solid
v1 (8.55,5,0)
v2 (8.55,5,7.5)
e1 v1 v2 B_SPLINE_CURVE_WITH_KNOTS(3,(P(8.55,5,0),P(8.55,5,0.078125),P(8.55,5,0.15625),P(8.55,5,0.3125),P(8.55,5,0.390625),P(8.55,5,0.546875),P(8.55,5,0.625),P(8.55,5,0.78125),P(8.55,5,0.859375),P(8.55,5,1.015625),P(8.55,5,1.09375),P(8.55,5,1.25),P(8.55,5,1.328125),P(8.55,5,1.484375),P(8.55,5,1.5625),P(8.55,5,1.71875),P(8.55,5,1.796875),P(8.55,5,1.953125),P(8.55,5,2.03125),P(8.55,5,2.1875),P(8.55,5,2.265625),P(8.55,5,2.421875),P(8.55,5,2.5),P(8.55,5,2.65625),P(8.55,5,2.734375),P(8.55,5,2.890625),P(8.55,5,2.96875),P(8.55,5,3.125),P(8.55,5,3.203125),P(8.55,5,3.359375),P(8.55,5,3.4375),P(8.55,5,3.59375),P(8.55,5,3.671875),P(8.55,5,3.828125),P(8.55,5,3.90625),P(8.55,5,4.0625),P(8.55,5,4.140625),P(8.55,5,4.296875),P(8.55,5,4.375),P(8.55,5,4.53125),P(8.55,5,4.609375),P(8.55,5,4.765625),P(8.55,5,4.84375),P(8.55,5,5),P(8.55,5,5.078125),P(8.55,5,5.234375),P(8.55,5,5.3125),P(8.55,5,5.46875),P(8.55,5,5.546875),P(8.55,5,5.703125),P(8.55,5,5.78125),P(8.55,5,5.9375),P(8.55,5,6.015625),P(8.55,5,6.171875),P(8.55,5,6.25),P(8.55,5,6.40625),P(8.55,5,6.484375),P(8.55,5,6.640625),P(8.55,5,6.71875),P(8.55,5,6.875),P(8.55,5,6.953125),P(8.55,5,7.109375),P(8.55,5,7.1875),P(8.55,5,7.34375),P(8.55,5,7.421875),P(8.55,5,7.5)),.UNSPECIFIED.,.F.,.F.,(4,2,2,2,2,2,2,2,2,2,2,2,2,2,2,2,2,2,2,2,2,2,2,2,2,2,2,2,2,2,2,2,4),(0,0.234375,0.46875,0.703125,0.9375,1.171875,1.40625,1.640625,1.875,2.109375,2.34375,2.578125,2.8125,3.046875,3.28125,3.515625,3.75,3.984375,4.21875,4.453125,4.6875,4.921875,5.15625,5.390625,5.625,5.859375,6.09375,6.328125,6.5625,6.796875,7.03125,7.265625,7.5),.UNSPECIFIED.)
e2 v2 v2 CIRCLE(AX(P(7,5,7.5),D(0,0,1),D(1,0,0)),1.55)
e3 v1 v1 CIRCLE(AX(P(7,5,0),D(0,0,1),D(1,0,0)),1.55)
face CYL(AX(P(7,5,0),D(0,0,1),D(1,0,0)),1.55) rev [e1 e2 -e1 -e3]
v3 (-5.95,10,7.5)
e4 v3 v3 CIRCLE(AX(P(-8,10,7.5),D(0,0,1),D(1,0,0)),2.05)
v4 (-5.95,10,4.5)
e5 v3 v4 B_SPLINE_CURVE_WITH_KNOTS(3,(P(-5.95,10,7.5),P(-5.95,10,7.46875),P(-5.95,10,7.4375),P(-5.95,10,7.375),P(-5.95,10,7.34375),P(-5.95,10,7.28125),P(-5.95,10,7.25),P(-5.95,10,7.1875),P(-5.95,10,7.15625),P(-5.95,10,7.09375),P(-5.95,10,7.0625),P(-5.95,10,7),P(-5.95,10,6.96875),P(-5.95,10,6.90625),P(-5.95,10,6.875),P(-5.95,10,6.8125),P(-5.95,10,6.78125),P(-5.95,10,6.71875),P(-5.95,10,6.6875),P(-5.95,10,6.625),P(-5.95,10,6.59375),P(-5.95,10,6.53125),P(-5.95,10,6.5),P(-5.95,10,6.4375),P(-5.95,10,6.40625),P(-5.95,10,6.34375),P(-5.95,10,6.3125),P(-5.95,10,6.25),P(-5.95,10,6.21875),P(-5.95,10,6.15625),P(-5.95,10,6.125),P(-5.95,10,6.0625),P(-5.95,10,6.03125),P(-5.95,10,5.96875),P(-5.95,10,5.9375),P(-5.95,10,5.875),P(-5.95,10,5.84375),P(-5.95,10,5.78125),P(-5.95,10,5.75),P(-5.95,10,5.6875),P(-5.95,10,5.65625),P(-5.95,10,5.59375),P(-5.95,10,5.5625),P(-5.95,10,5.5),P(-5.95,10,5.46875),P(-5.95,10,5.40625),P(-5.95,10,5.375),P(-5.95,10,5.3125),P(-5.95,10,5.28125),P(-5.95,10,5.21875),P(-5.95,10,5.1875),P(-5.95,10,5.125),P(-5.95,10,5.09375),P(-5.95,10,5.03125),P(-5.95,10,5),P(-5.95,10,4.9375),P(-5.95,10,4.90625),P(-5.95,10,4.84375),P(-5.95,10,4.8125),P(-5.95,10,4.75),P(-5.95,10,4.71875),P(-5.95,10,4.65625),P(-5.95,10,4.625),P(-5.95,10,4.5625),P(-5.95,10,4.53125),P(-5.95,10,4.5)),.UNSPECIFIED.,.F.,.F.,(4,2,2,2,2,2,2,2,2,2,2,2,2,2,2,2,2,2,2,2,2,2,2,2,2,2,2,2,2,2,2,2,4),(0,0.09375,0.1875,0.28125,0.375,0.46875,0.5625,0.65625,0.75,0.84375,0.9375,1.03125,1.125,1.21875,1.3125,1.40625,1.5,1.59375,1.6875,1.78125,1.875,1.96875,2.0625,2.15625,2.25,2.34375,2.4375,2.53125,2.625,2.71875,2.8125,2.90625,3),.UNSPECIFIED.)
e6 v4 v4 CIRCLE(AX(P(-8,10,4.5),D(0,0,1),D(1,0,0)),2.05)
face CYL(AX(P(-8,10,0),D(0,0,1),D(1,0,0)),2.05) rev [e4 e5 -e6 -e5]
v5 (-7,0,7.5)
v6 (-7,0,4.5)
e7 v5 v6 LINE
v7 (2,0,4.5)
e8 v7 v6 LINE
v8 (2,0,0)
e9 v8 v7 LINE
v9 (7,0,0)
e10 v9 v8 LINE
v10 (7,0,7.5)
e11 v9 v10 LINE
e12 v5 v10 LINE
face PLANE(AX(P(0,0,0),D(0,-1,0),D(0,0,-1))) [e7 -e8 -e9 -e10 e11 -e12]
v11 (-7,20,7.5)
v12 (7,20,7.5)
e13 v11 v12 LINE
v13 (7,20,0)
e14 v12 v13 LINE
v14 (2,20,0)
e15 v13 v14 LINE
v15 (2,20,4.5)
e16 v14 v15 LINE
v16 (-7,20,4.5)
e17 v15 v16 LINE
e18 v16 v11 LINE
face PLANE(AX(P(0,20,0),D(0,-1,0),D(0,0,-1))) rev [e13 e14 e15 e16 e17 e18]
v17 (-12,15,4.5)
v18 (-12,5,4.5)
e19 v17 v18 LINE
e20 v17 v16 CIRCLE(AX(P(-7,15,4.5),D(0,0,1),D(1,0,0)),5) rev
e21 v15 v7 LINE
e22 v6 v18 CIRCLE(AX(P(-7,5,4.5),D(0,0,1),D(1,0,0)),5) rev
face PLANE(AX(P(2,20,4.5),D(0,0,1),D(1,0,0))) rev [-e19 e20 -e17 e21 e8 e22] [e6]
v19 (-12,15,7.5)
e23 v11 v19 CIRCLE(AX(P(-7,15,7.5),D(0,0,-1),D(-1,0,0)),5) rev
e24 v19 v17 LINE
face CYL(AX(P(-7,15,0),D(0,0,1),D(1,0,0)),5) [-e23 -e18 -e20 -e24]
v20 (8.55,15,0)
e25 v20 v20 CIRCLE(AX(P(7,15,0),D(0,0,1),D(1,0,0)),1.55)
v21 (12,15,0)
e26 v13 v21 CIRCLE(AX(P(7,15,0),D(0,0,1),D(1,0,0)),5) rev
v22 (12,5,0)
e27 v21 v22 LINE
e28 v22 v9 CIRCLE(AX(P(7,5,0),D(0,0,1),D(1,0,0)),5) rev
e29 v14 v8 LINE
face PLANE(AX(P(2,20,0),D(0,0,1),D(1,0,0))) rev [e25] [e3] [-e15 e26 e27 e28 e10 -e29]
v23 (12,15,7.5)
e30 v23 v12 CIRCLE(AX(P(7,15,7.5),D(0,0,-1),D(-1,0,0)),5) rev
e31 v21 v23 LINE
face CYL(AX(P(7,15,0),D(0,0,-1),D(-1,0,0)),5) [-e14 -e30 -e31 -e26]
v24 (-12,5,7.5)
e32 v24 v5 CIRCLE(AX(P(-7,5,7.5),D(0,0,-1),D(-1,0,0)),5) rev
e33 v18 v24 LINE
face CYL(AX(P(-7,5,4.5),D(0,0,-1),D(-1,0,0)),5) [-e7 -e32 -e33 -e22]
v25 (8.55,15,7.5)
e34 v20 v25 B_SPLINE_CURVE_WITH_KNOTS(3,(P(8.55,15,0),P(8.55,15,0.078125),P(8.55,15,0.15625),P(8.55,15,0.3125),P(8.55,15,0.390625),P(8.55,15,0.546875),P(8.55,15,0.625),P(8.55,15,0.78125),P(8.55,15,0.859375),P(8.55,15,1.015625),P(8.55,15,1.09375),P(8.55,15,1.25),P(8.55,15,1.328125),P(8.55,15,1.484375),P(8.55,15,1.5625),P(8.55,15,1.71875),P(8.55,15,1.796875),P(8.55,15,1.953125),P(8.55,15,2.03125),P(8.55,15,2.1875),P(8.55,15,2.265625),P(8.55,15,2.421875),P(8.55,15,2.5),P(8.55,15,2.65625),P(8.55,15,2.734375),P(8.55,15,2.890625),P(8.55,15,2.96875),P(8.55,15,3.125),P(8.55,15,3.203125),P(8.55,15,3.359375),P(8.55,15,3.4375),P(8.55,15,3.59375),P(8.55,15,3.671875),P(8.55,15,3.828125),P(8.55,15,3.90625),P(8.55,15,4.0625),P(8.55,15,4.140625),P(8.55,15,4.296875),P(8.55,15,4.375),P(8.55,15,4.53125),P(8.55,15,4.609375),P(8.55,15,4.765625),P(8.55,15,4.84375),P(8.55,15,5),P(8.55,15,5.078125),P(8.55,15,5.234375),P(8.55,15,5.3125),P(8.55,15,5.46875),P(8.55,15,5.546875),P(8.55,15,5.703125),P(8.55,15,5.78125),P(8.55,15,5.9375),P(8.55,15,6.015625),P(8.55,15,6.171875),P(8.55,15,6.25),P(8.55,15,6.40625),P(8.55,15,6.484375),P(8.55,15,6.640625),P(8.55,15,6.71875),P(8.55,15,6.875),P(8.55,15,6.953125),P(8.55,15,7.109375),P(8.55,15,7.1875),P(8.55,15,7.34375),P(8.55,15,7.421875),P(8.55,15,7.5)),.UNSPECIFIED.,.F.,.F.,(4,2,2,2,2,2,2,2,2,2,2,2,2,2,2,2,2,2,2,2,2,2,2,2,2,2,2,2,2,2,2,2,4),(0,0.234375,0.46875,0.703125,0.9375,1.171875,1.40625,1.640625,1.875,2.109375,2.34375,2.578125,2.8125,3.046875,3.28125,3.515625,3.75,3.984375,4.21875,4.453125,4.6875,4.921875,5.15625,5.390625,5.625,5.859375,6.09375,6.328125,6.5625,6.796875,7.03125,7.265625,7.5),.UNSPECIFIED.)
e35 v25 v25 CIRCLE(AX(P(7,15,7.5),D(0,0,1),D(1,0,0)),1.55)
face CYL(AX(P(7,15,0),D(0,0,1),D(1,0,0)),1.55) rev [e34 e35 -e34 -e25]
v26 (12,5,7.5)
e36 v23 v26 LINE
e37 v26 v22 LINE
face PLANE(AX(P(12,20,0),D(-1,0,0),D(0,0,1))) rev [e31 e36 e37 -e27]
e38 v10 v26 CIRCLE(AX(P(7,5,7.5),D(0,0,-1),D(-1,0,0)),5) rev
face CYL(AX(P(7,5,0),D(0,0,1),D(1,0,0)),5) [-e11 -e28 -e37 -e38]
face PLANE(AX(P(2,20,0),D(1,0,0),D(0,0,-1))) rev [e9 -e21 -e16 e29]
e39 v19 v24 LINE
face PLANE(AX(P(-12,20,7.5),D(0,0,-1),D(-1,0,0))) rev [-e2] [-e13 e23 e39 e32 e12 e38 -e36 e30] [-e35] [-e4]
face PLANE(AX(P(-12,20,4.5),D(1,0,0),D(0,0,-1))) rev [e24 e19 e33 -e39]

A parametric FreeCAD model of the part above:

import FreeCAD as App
import Part
import Sketcher
from FreeCAD import Vector
Q = App.Units.Quantity


def edges_at(feature, points):
    """Names of the edges that pass closest to the given points."""
    edges = feature.Shape.Edges
    near = lambda p: min(range(len(edges)), key=lambda i: edges[i].distToShape(Part.Vertex(*p))[0])
    return sorted({f"Edge{near(p) + 1}" for p in points})

doc = App.newDocument("Part")
body = doc.addObject("PartDesign::Body", "Body")

# Sketch on XZ plane
sketch1 = doc.addObject("Sketcher::SketchObject", "Sketch")
body.addObject(sketch1)
sketch1.AttachmentSupport = (doc.XZ_Plane, [""])
sketch1.MapMode = "FlatFace"
sketch1.addGeometry([
    Part.LineSegment(Vector(2, 4.5, 0), Vector(-12, 4.5, 0)),  # 0
    Part.LineSegment(Vector(-12, 4.5, 0), Vector(-12, 7.5, 0)),  # 1
    Part.LineSegment(Vector(-12, 7.5, 0), Vector(12, 7.5, 0)),  # 2
    Part.LineSegment(Vector(12, 7.5, 0), Vector(12, 0, 0)),  # 3
    Part.LineSegment(Vector(12, 0, 0), Vector(2, 0, 0)),  # 4
    Part.LineSegment(Vector(2, 0, 0), Vector(2, 4.5, 0)),  # 5
], False)
sketch1.addConstraint([
    Sketcher.Constraint("Coincident", 0, 2, 1, 1),
    Sketcher.Constraint("Coincident", 1, 2, 2, 1),
    Sketcher.Constraint("Coincident", 2, 2, 3, 1),
    Sketcher.Constraint("Coincident", 3, 2, 4, 1),
    Sketcher.Constraint("Coincident", 4, 2, 5, 1),
    Sketcher.Constraint("Coincident", 5, 2, 0, 1),
    Sketcher.Constraint("Horizontal", 0),
    Sketcher.Constraint("Vertical", 1),
    Sketcher.Constraint("Horizontal", 2),
    Sketcher.Constraint("Vertical", 3),
    Sketcher.Constraint("Horizontal", 4),
    Sketcher.Constraint("Vertical", 5),
    Sketcher.Constraint("PointOnObject", 3, 2, -1),
    Sketcher.Constraint("DistanceX", 0, 2, 0, 1, Q("14 mm")),
    Sketcher.Constraint("DistanceX", 2, 1, 2, 2, Q("24 mm")),
    Sketcher.Constraint("DistanceY", 1, 1, 1, 2, Q("3 mm")),
    Sketcher.Constraint("DistanceY", 3, 2, 3, 1, Q("7.5 mm")),
    Sketcher.Constraint("DistanceX", 0, 2, -1, 1, Q("12 mm")),
])
pad1 = doc.addObject("PartDesign::Pad", "Pad")
body.addObject(pad1)
pad1.Profile = sketch1
pad1.Length = 20
pad1.Reversed = True

# Sketch on XY plane
sketch2 = doc.addObject("Sketcher::SketchObject", "Sketch001")
body.addObject(sketch2)
sketch2.AttachmentSupport = (doc.XY_Plane, [""])
sketch2.MapMode = "FlatFace"
sketch2.AttachmentOffset = App.Placement(Vector(0, 0, 7.5), App.Rotation())
sketch2.addGeometry([
    Part.Circle(Vector(-8, 10, 0), Vector(0, 0, 1), 2.05),
    Part.Circle(Vector(7, 15, 0), Vector(0, 0, 1), 1.55),
    Part.Circle(Vector(7, 5, 0), Vector(0, 0, 1), 1.55),
], False)
sketch2.addConstraint([
    Sketcher.Constraint("Equal", 1, 2),
    Sketcher.Constraint("Vertical", 1, 3, 2, 3),
    Sketcher.Constraint("Diameter", 0, Q("4.1 mm")),
    Sketcher.Constraint("Diameter", 1, Q("3.1 mm")),
    Sketcher.Constraint("DistanceX", 0, 3, -1, 1, Q("8 mm")),
    Sketcher.Constraint("DistanceY", -1, 1, 0, 3, Q("10 mm")),
    Sketcher.Constraint("DistanceX", -1, 1, 1, 3, Q("7 mm")),
    Sketcher.Constraint("DistanceY", -1, 1, 1, 3, Q("15 mm")),
    Sketcher.Constraint("DistanceY", -1, 1, 2, 3, Q("5 mm")),
])
pocket1 = doc.addObject("PartDesign::Pocket", "Pocket")
body.addObject(pocket1)
pocket1.Profile = sketch2
pocket1.Type = "ThroughAll"
doc.recompute()

fillet = doc.addObject("PartDesign::Fillet", "Fillet")
body.addObject(fillet)
fillet.Base = (pocket1, edges_at(pocket1, [
    (-12, 20, 6),
    (12, 20, 3.75),
    (12, 0, 3.75),
    (-12, 0, 6),
]))
fillet.Radius = 5

doc.recompute()
